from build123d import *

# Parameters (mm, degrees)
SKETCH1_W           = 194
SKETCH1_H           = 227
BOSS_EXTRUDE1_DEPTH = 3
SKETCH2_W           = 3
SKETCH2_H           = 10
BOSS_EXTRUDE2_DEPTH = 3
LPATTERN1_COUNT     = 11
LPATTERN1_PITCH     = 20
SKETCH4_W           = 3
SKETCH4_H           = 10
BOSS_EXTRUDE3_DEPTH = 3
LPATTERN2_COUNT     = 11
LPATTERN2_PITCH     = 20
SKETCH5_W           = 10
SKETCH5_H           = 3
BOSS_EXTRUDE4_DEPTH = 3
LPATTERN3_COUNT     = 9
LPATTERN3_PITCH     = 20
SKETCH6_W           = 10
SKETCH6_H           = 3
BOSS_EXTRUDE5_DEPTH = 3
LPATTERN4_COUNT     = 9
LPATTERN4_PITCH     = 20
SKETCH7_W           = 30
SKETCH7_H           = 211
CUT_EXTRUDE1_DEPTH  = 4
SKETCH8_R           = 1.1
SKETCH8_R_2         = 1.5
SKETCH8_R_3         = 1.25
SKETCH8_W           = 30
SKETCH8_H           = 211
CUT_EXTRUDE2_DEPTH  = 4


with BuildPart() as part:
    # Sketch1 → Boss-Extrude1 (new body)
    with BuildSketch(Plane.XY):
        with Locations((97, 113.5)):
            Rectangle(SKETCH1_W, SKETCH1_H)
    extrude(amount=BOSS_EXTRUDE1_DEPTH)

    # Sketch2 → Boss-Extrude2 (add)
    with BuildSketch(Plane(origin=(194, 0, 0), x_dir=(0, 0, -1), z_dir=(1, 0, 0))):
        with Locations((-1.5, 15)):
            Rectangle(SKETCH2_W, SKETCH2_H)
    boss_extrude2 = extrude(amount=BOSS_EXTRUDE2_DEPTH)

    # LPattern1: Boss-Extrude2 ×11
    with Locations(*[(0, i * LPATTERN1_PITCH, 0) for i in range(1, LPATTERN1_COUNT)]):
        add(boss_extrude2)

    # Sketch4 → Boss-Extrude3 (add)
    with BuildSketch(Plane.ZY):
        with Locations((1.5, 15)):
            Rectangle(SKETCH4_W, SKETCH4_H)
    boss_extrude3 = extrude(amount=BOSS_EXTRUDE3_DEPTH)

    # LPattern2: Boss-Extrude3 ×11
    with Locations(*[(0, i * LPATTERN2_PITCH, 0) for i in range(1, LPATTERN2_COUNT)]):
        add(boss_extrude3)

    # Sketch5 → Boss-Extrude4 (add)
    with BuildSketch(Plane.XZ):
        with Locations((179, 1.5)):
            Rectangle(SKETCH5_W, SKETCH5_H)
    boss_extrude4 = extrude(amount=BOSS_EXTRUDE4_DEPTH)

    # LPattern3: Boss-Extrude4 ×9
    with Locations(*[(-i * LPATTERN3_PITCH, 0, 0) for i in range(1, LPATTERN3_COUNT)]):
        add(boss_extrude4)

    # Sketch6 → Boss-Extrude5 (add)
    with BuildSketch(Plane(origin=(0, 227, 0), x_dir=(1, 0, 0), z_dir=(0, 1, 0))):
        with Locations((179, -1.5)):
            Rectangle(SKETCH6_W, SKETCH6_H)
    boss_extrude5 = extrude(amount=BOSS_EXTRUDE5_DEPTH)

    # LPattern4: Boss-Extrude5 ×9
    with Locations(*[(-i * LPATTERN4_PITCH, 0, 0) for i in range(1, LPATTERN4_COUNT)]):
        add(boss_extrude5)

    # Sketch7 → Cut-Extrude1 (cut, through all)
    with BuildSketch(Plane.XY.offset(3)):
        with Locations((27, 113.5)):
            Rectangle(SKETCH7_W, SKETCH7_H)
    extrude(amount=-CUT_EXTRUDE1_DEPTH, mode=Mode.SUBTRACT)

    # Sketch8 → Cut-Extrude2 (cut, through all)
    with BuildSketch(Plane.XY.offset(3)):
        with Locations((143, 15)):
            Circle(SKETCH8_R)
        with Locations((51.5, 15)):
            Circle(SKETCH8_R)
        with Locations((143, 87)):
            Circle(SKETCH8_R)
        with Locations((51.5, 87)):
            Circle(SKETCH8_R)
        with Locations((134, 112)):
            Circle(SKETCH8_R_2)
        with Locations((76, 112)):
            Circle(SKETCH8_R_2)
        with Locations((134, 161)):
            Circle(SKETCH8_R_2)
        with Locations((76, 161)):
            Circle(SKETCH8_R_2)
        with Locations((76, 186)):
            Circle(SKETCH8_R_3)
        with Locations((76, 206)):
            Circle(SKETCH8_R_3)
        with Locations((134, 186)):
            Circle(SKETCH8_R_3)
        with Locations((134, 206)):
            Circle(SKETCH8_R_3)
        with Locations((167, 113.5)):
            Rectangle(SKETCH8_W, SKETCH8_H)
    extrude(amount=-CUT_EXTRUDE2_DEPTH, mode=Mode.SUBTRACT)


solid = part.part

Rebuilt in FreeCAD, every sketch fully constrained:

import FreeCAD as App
import Part
import Sketcher


def add_polygon(sketch, points):
    """Adds a closed chain of lines whose ends are joined by coincident constraints."""
    first, n = sketch.GeometryCount, len(points)
    for a, b in zip(points, points[1:] + points[:1]):
        sketch.addGeometry(Part.LineSegment(App.Vector(*a, 0), App.Vector(*b, 0)), False)
    for i in range(n):
        sketch.addConstraint(Sketcher.Constraint("Coincident", first + i, 2, first + (i + 1) % n, 1))

doc = App.newDocument("Part")
body = doc.addObject("PartDesign::Body", "Body")

# Sketch on XY plane
sketch1 = body.newObject("Sketcher::SketchObject", "Sketch")
sketch1.AttachmentSupport = (doc.getObject("XY_Plane"), [""])
sketch1.MapMode = "FlatFace"
add_polygon(sketch1, [(0, 227), (0, 0), (194, 0), (194, 227)])  # lines 0-3
sketch1.addConstraint([
    Sketcher.Constraint("Vertical", 0),
    Sketcher.Constraint("Horizontal", 1),
    Sketcher.Constraint("Vertical", 2),
    Sketcher.Constraint("Horizontal", 3),
    Sketcher.Constraint("Coincident", 0, 2, -1, 1),
    Sketcher.Constraint("DistanceX", 1, 1, 1, 2, 194.0),
    Sketcher.Constraint("DistanceY", 0, 2, 0, 1, 227.0),
])
pad1 = body.newObject("PartDesign::Pad", "Pad")
pad1.Profile = sketch1
pad1.Length = 3

# Sketch on YZ plane
sketch2 = body.newObject("Sketcher::SketchObject", "Sketch001")
sketch2.AttachmentSupport = (doc.getObject("YZ_Plane"), [""])
sketch2.MapMode = "FlatFace"
sketch2.AttachmentOffset = App.Placement(App.Vector(0, 0, 194), App.Rotation())
add_polygon(sketch2, [(20, 3), (10, 3), (10, 0), (20, 0)])  # lines 0-3
sketch2.addConstraint([
    Sketcher.Constraint("Horizontal", 0),
    Sketcher.Constraint("Vertical", 1),
    Sketcher.Constraint("Horizontal", 2),
    Sketcher.Constraint("Vertical", 3),
    Sketcher.Constraint("PointOnObject", 1, 2, -1),
    Sketcher.Constraint("DistanceX", 0, 2, 0, 1, 10.0),
    Sketcher.Constraint("DistanceY", 1, 2, 1, 1, 3.0),
    Sketcher.Constraint("DistanceX", -1, 1, 0, 2, 10.0),
])
pad2 = body.newObject("PartDesign::Pad", "Pad001")
pad2.Profile = sketch2
pad2.Length = 3
doc.recompute()

linearpattern = body.newObject("PartDesign::LinearPattern", "LinearPattern")
linearpattern.Originals = [pad2]
linearpattern.Direction = (doc.getObject("Y_Axis"), [""])
linearpattern.Mode = "offset"
linearpattern.Offset = 20
linearpattern.Occurrences = 11
body.Tip = linearpattern

# Sketch on YZ plane
sketch3 = body.newObject("Sketcher::SketchObject", "Sketch002")
sketch3.AttachmentSupport = (doc.getObject("YZ_Plane"), [""])
sketch3.MapMode = "FlatFace"
add_polygon(sketch3, [(20, 0), (10, 0), (10, 3), (20, 3)])  # lines 0-3
sketch3.addConstraint([
    Sketcher.Constraint("Horizontal", 0),
    Sketcher.Constraint("Vertical", 1),
    Sketcher.Constraint("Horizontal", 2),
    Sketcher.Constraint("Vertical", 3),
    Sketcher.Constraint("PointOnObject", 0, 2, -1),
    Sketcher.Constraint("DistanceX", 0, 2, 0, 1, 10.0),
    Sketcher.Constraint("DistanceY", 1, 1, 1, 2, 3.0),
    Sketcher.Constraint("DistanceX", -1, 1, 0, 2, 10.0),
])
pad3 = body.newObject("PartDesign::Pad", "Pad002")
pad3.Profile = sketch3
pad3.Length = 3
pad3.Reversed = True
doc.recompute()

linearpattern2 = body.newObject("PartDesign::LinearPattern", "LinearPattern001")
linearpattern2.Originals = [pad3]
linearpattern2.Direction = (doc.getObject("Y_Axis"), [""])
linearpattern2.Mode = "offset"
linearpattern2.Offset = 20
linearpattern2.Occurrences = 11
body.Tip = linearpattern2

# Sketch on XZ plane
sketch4 = body.newObject("Sketcher::SketchObject", "Sketch003")
sketch4.AttachmentSupport = (doc.getObject("XZ_Plane"), [""])
sketch4.MapMode = "FlatFace"
add_polygon(sketch4, [(174, 3), (174, 0), (184, 0), (184, 3)])  # lines 0-3
sketch4.addConstraint([
    Sketcher.Constraint("Vertical", 0),
    Sketcher.Constraint("Horizontal", 1),
    Sketcher.Constraint("Vertical", 2),
    Sketcher.Constraint("Horizontal", 3),
    Sketcher.Constraint("PointOnObject", 0, 2, -1),
    Sketcher.Constraint("DistanceX", 1, 1, 1, 2, 10.0),
    Sketcher.Constraint("DistanceY", 0, 2, 0, 1, 3.0),
    Sketcher.Constraint("DistanceX", -1, 1, 0, 2, 174.0),
])
pad4 = body.newObject("PartDesign::Pad", "Pad003")
pad4.Profile = sketch4
pad4.Length = 3
doc.recompute()

linearpattern3 = body.newObject("PartDesign::LinearPattern", "LinearPattern002")
linearpattern3.Originals = [pad4]
linearpattern3.Direction = (doc.getObject("X_Axis"), [""])
linearpattern3.Mode = "offset"
linearpattern3.Offset = 20
linearpattern3.Occurrences = 9
linearpattern3.Reversed = True
body.Tip = linearpattern3

# Sketch on XZ plane
sketch5 = body.newObject("Sketcher::SketchObject", "Sketch004")
sketch5.AttachmentSupport = (doc.getObject("XZ_Plane"), [""])
sketch5.MapMode = "FlatFace"
sketch5.AttachmentOffset = App.Placement(App.Vector(0, 0, -227), App.Rotation())
add_polygon(sketch5, [(174, 0), (174, 3), (184, 3), (184, 0)])  # lines 0-3
sketch5.addConstraint([
    Sketcher.Constraint("Vertical", 0),
    Sketcher.Constraint("Horizontal", 1),
    Sketcher.Constraint("Vertical", 2),
    Sketcher.Constraint("Horizontal", 3),
    Sketcher.Constraint("PointOnObject", 2, 2, -1),
    Sketcher.Constraint("DistanceX", 1, 1, 1, 2, 10.0),
    Sketcher.Constraint("DistanceY", 0, 1, 0, 2, 3.0),
    Sketcher.Constraint("DistanceX", -1, 1, 0, 2, 174.0),
])
pad5 = body.newObject("PartDesign::Pad", "Pad004")
pad5.Profile = sketch5
pad5.Length = 3
pad5.Reversed = True
doc.recompute()

linearpattern4 = body.newObject("PartDesign::LinearPattern", "LinearPattern003")
linearpattern4.Originals = [pad5]
linearpattern4.Direction = (doc.getObject("X_Axis"), [""])
linearpattern4.Mode = "offset"
linearpattern4.Offset = 20
linearpattern4.Occurrences = 9
linearpattern4.Reversed = True
body.Tip = linearpattern4

# Sketch on XY plane
sketch6 = body.newObject("Sketcher::SketchObject", "Sketch005")
sketch6.AttachmentSupport = (doc.getObject("XY_Plane"), [""])
sketch6.MapMode = "FlatFace"
sketch6.AttachmentOffset = App.Placement(App.Vector(0, 0, 3), App.Rotation())
add_polygon(sketch6, [(12, 219), (12, 8), (42, 8), (42, 219)])  # lines 0-3
sketch6.addConstraint([
    Sketcher.Constraint("Vertical", 0),
    Sketcher.Constraint("Horizontal", 1),
    Sketcher.Constraint("Vertical", 2),
    Sketcher.Constraint("Horizontal", 3),
    Sketcher.Constraint("DistanceX", 1, 1, 1, 2, 30.0),
    Sketcher.Constraint("DistanceY", 0, 2, 0, 1, 211.0),
    Sketcher.Constraint("DistanceX", -1, 1, 0, 2, 12.0),
    Sketcher.Constraint("DistanceY", -1, 1, 0, 2, 8.0),
])
pocket1 = body.newObject("PartDesign::Pocket", "Pocket")
pocket1.Profile = sketch6
pocket1.Type = "ThroughAll"

# Sketch on XY plane
sketch7 = body.newObject("Sketcher::SketchObject", "Sketch006")
sketch7.AttachmentSupport = (doc.getObject("XY_Plane"), [""])
sketch7.MapMode = "FlatFace"
sketch7.AttachmentOffset = App.Placement(App.Vector(0, 0, 3), App.Rotation())
sketch7.addGeometry(Part.Circle(App.Vector(143, 15, 0), App.Vector(0, 0, 1), 1.1), False)  # 0
sketch7.addGeometry(Part.Circle(App.Vector(51.5, 15, 0), App.Vector(0, 0, 1), 1.1), False)  # 1
sketch7.addGeometry(Part.Circle(App.Vector(143, 87, 0), App.Vector(0, 0, 1), 1.1), False)  # 2
sketch7.addGeometry(Part.Circle(App.Vector(51.5, 87, 0), App.Vector(0, 0, 1), 1.1), False)  # 3
sketch7.addGeometry(Part.Circle(App.Vector(134, 112, 0), App.Vector(0, 0, 1), 1.5), False)  # 4
sketch7.addGeometry(Part.Circle(App.Vector(76, 112, 0), App.Vector(0, 0, 1), 1.5), False)  # 5
sketch7.addGeometry(Part.Circle(App.Vector(134, 161, 0), App.Vector(0, 0, 1), 1.5), False)  # 6
sketch7.addGeometry(Part.Circle(App.Vector(76, 161, 0), App.Vector(0, 0, 1), 1.5), False)  # 7
sketch7.addGeometry(Part.Circle(App.Vector(76, 186, 0), App.Vector(0, 0, 1), 1.2), False)  # 8
sketch7.addGeometry(Part.Circle(App.Vector(76, 206, 0), App.Vector(0, 0, 1), 1.2), False)  # 9
sketch7.addGeometry(Part.Circle(App.Vector(134, 186, 0), App.Vector(0, 0, 1), 1.2), False)  # 10
sketch7.addGeometry(Part.Circle(App.Vector(134, 206, 0), App.Vector(0, 0, 1), 1.2), False)  # 11
add_polygon(sketch7, [(152, 219), (152, 8), (182, 8), (182, 219)])  # lines 12-15
sketch7.addConstraint([
    Sketcher.Constraint("Vertical", 12),
    Sketcher.Constraint("Horizontal", 13),
    Sketcher.Constraint("Vertical", 14),
    Sketcher.Constraint("Horizontal", 15),
    Sketcher.Constraint("Equal", 0, 1),
    Sketcher.Constraint("Equal", 1, 2),
    Sketcher.Constraint("Equal", 2, 3),
    Sketcher.Constraint("Equal", 4, 5),
    Sketcher.Constraint("Equal", 5, 6),
    Sketcher.Constraint("Equal", 6, 7),
    Sketcher.Constraint("Equal", 8, 9),
    Sketcher.Constraint("Equal", 9, 10),
    Sketcher.Constraint("Equal", 10, 11),
    Sketcher.Constraint("Horizontal", 0, 3, 1, 3),
    Sketcher.Constraint("Horizontal", 2, 3, 3, 3),
    Sketcher.Constraint("Horizontal", 4, 3, 5, 3),
    Sketcher.Constraint("Horizontal", 6, 3, 7, 3),
    Sketcher.Constraint("Horizontal", 8, 3, 10, 3),
    Sketcher.Constraint("Horizontal", 9, 3, 11, 3),
    Sketcher.Constraint("Vertical", 0, 3, 2, 3),
    Sketcher.Constraint("Vertical", 1, 3, 3, 3),
    Sketcher.Constraint("Vertical", 4, 3, 6, 3),
    Sketcher.Constraint("Vertical", 5, 3, 7, 3),
    Sketcher.Constraint("Vertical", 7, 3, 8, 3),
    Sketcher.Constraint("Vertical", 8, 3, 9, 3),
    Sketcher.Constraint("Vertical", 6, 3, 10, 3),
    Sketcher.Constraint("Vertical", 10, 3, 11, 3),
    Sketcher.Constraint("Diameter", 4, 3.0),
    Sketcher.Constraint("Diameter", 0, 2.2),
    Sketcher.Constraint("Diameter", 8, 2.5),
    Sketcher.Constraint("DistanceX", 13, 1, 13, 2, 30.0),
    Sketcher.Constraint("DistanceY", 12, 2, 12, 1, 211.0),
    Sketcher.Constraint("DistanceX", -1, 1, 0, 3, 143.0),
    Sketcher.Constraint("DistanceY", -1, 1, 0, 3, 15.0),
    Sketcher.Constraint("DistanceY", -1, 1, 2, 3, 87.0),
    Sketcher.Constraint("DistanceX", -1, 1, 4, 3, 134.0),
    Sketcher.Constraint("DistanceY", -1, 1, 4, 3, 112.0),
    Sketcher.Constraint("DistanceX", -1, 1, 5, 3, 76.0),
    Sketcher.Constraint("DistanceY", -1, 1, 6, 3, 161.0),
    Sketcher.Constraint("DistanceY", -1, 1, 8, 3, 186.0),
    Sketcher.Constraint("DistanceY", -1, 1, 9, 3, 206.0),
    Sketcher.Constraint("DistanceX", -1, 1, 12, 2, 152.0),
    Sketcher.Constraint("DistanceY", -1, 1, 12, 2, 8.0),
    Sketcher.Constraint("DistanceX", -1, 1, 1, 3, 51.5),
])
pocket2 = body.newObject("PartDesign::Pocket", "Pocket001")
pocket2.Profile = sketch7
pocket2.Type = "ThroughAll"

doc.recompute()
